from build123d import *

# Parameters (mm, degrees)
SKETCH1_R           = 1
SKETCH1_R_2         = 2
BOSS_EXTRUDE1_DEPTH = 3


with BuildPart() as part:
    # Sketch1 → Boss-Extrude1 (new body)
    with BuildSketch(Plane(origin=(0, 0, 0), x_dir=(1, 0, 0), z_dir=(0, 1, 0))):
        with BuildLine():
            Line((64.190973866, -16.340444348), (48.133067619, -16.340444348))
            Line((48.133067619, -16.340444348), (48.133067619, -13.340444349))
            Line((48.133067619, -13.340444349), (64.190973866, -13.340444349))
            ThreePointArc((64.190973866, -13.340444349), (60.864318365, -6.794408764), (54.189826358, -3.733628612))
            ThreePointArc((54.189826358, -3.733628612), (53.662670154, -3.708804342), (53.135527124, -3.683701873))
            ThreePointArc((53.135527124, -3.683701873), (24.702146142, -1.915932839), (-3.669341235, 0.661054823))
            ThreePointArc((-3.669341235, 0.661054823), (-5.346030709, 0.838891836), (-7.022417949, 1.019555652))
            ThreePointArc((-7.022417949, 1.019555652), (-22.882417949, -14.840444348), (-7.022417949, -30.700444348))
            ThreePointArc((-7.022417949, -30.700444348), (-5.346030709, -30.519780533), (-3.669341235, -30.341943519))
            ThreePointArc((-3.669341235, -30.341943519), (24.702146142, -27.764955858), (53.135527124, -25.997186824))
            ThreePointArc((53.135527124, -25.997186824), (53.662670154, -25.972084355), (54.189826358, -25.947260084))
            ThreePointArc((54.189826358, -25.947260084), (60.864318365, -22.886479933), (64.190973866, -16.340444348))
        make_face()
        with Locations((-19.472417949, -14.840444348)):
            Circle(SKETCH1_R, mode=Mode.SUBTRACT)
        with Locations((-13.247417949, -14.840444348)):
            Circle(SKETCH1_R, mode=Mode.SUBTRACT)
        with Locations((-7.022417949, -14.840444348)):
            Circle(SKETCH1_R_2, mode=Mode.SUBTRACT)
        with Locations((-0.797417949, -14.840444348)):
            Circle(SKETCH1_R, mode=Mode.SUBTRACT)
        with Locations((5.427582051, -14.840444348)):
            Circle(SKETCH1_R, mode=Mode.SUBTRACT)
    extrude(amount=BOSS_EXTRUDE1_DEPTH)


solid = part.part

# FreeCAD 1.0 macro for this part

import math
import FreeCAD as App
import Part
import Sketcher
from FreeCAD import Vector

doc = App.newDocument("Part")
params = doc.addObject("Spreadsheet::Sheet", "Params")
for row, (alias, value) in enumerate([
    ("sketch1_diameter", "2 mm"),
    ("sketch1_diameter2", "2 mm"),
    ("sketch1_diameter3", "4 mm"),
    ("sketch1_diameter4", "2 mm"),
    ("sketch1_diameter5", "2 mm"),
    ("pad1_length", "3 mm"),
], start=1):
    params.set(f"A{row}", alias)
    params.set(f"B{row}", "=" + value)
    params.setAlias(f"B{row}", alias)

body = doc.addObject("PartDesign::Body", "Body")

# Sketch on XZ plane
sketch1 = body.newObject("Sketcher::SketchObject", "Sketch")
sketch1.AttachmentSupport = (doc.getObject("XZ_Plane"), [""])
sketch1.MapMode = "FlatFace"
sketch1.addGeometry(Part.LineSegment(Vector(64.190974, 16.340444, 0), Vector(48.133068, 16.340444, 0)), False)
sketch1.addGeometry(Part.LineSegment(Vector(48.133068, 16.340444, 0), Vector(48.133068, 13.340444, 0)), False)
sketch1.addGeometry(Part.LineSegment(Vector(48.133068, 13.340444, 0), Vector(64.190974, 13.340444, 0)), False)
sketch1.addGeometry(Part.ArcOfCircle(Part.Circle(Vector(53.135527, 14.840444, 0), Vector(0, 0, 1), 11.156742), math.radians(-84.577524), math.radians(-7.726693)), False)
sketch1.addGeometry(Part.ArcOfCircle(Part.Circle(Vector(100.964897, -995.168792, 0), Vector(0, 0, 1), 999.996977), math.radians(92.681), math.radians(92.741475)), False)
sketch1.addGeometry(Part.ArcOfCircle(Part.Circle(Vector(100.96504, -995.171811, 0), Vector(0, 0, 1), 999.999999), math.radians(92.741475), math.radians(96.006102)), False)
sketch1.addGeometry(Part.ArcOfCircle(Part.Circle(Vector(100.965021, -995.171634, 0), Vector(0, 0, 1), 999.999821), math.radians(96.006102), math.radians(96.199314)), False)
sketch1.addGeometry(Part.ArcOfCircle(Part.Circle(Vector(-7.022418, 14.840444, 0), Vector(0, 0, 1), 15.86), math.radians(90), math.radians(270)), False)
sketch1.addGeometry(Part.ArcOfCircle(Part.Circle(Vector(100.965096, 1024.853219, 0), Vector(0, 0, 1), 1000.000521), math.radians(-96.199314), math.radians(-96.006102)), False)
sketch1.addGeometry(Part.ArcOfCircle(Part.Circle(Vector(100.96504, 1024.852701, 0), Vector(0, 0, 1), 1000), math.radians(-96.006102), math.radians(-92.741475)), False)
sketch1.addGeometry(Part.ArcOfCircle(Part.Circle(Vector(100.965067, 1024.853263, 0), Vector(0, 0, 1), 1000.000563), math.radians(-92.741475), math.radians(-92.681001)), False)
sketch1.addGeometry(Part.ArcOfCircle(Part.Circle(Vector(53.135527, 14.840444, 0), Vector(0, 0, 1), 11.156742), math.radians(7.726693), math.radians(84.577524)), False)
sketch1.addGeometry(Part.Circle(Vector(-19.472418, 14.840444, 0), Vector(0, 0, 1), 1), False)
sketch1.addGeometry(Part.Circle(Vector(-13.247418, 14.840444, 0), Vector(0, 0, 1), 1), False)
sketch1.addGeometry(Part.Circle(Vector(-7.022418, 14.840444, 0), Vector(0, 0, 1), 2), False)
sketch1.addGeometry(Part.Circle(Vector(-0.797418, 14.840444, 0), Vector(0, 0, 1), 1), False)
sketch1.addGeometry(Part.Circle(Vector(5.427582, 14.840444, 0), Vector(0, 0, 1), 1), False)
sketch1.addConstraint(Sketcher.Constraint("Coincident", 0, 2, 1, 1))
sketch1.addConstraint(Sketcher.Constraint("Coincident", 1, 2, 2, 1))
sketch1.addConstraint(Sketcher.Constraint("Coincident", 2, 2, 3, 2))
sketch1.addConstraint(Sketcher.Constraint("Coincident", 3, 1, 4, 1))
sketch1.addConstraint(Sketcher.Constraint("Coincident", 4, 2, 5, 1))
sketch1.addConstraint(Sketcher.Constraint("Coincident", 5, 2, 6, 1))
sketch1.addConstraint(Sketcher.Constraint("Coincident", 6, 2, 7, 2))
sketch1.addConstraint(Sketcher.Constraint("Coincident", 7, 1, 8, 1))
sketch1.addConstraint(Sketcher.Constraint("Coincident", 8, 2, 9, 1))
sketch1.addConstraint(Sketcher.Constraint("Coincident", 9, 2, 10, 1))
sketch1.addConstraint(Sketcher.Constraint("Coincident", 10, 2, 11, 2))
sketch1.addConstraint(Sketcher.Constraint("Coincident", 11, 1, 0, 1))
sketch1.addConstraint(Sketcher.Constraint("Horizontal", 0))
sketch1.addConstraint(Sketcher.Constraint("Vertical", 1))
sketch1.addConstraint(Sketcher.Constraint("Horizontal", 2))
sketch1.addConstraint(Sketcher.Constraint("Coincident", 11, 3, 3, 3))
sketch1.addConstraint(Sketcher.Constraint("Coincident", 14, 3, 7, 3))
sketch1.addConstraint(Sketcher.Constraint("Diameter", 12, 2.0))
sketch1.addConstraint(Sketcher.Constraint("Diameter", 13, 2.0))
sketch1.addConstraint(Sketcher.Constraint("Diameter", 14, 4.0))
sketch1.addConstraint(Sketcher.Constraint("Diameter", 15, 2.0))
sketch1.addConstraint(Sketcher.Constraint("Diameter", 16, 2.0))
sketch1.addConstraint(Sketcher.Constraint("Radius", 5, 999.999999))
sketch1.addConstraint(Sketcher.Constraint("Radius", 9, 1000.0))
sketch1.addConstraint(Sketcher.Constraint("DistanceY", 1, 2, 1, 1, 3.0))
sketch1.addConstraint(Sketcher.Constraint("Radius", 7, 15.86))
sketch1.addConstraint(Sketcher.Constraint("DistanceX", 12, 3, 16, 3, 24.9))
sketch1.addConstraint(Sketcher.Constraint("DistanceY", 3, 3, 0, 2, 1.5))
sketch1.addConstraint(Sketcher.Constraint("DistanceY", 16, 3, 0, 2, 1.5))
sketch1.addConstraint(Sketcher.Constraint("DistanceY", 15, 3, 0, 2, 1.5))
sketch1.addConstraint(Sketcher.Constraint("DistanceY", 7, 3, 0, 2, 1.5))
sketch1.addConstraint(Sketcher.Constraint("Radius", 6, 999.999821))
sketch1.addConstraint(Sketcher.Constraint("Radius", 8, 1000.000521))
sketch1.addConstraint(Sketcher.Constraint("DistanceX", 12, 3, 7, 3, 12.45))
sketch1.addConstraint(Sketcher.Constraint("DistanceX", 13, 3, 15, 3, 12.45))
sketch1.addConstraint(Sketcher.Constraint("DistanceY", 6, 2, 13, 3, 15.86))
sketch1.addConstraint(Sketcher.Constraint("DistanceX", 12, 3, 7, 1, 12.45))
sketch1.addConstraint(Sketcher.Constraint("DistanceY", 12, 3, 7, 1, 15.86))
sketch1.addConstraint(Sketcher.Constraint("Radius", 3, 11.156742))
sketch1.addConstraint(Sketcher.Constraint("Radius", 4, 999.996977))
sketch1.addConstraint(Sketcher.Constraint("Radius", 10, 1000.000563))
sketch1.addConstraint(Sketcher.Constraint("Radius", 11, 11.156742))
sketch1.addConstraint(Sketcher.Constraint("DistanceX", 12, 3, 13, 3, 6.225))
sketch1.addConstraint(Sketcher.Constraint("DistanceX", 6, 2, 15, 3, 6.225))
sketch1.addConstraint(Sketcher.Constraint("DistanceY", -1, 1, 9, 3, 1024.852701))
sketch1.addConstraint(Sketcher.Constraint("DistanceY", -1, 1, 4, 2, 3.683702))
sketch1.addConstraint(Sketcher.Constraint("DistanceX", 4, 3, 8, 3, 0.000199))
sketch1.addConstraint(Sketcher.Constraint("DistanceX", 3, 3, 3, 1, 1.054299))
sketch1.addConstraint(Sketcher.Constraint("DistanceX", 4, 2, 3, 1, 1.054299))
sketch1.addConstraint(Sketcher.Constraint("DistanceY", 5, 2, 15, 3, 15.501499))
sketch1.addConstraint(Sketcher.Constraint("DistanceY", 8, 2, 7, 1, 0.358501))
sketch1.addConstraint(Sketcher.Constraint("DistanceX", 9, 2, 10, 2, 1.054299))
sketch1.addConstraint(Sketcher.Constraint("DistanceX", 0, 2, 0, 1, 16.057906))
sketch1.addConstraint(Sketcher.Constraint("DistanceX", -1, 1, 5, 3, 100.96504))
sketch1.addConstraint(Sketcher.Constraint("DistanceY", 5, 3, -1, 1, 995.171811))
sketch1.addConstraint(Sketcher.Constraint("DistanceX", -1, 1, 6, 3, 100.965021))
sketch1.addConstraint(Sketcher.Constraint("DistanceY", -1, 1, 8, 3, 1024.853219))
sketch1.addConstraint(Sketcher.Constraint("DistanceY", 9, 3, 10, 3, 0.000562))
sketch1.setExpression("Constraints[17]", "Params.sketch1_diameter")
sketch1.setExpression("Constraints[18]", "Params.sketch1_diameter2")
sketch1.setExpression("Constraints[19]", "Params.sketch1_diameter3")
sketch1.setExpression("Constraints[20]", "Params.sketch1_diameter4")
sketch1.setExpression("Constraints[21]", "Params.sketch1_diameter5")
pad1 = body.newObject("PartDesign::Pad", "Pad")
pad1.Profile = sketch1
pad1.setExpression("Length", "Params.pad1_length")
pad1.Reversed = True

doc.recompute()
